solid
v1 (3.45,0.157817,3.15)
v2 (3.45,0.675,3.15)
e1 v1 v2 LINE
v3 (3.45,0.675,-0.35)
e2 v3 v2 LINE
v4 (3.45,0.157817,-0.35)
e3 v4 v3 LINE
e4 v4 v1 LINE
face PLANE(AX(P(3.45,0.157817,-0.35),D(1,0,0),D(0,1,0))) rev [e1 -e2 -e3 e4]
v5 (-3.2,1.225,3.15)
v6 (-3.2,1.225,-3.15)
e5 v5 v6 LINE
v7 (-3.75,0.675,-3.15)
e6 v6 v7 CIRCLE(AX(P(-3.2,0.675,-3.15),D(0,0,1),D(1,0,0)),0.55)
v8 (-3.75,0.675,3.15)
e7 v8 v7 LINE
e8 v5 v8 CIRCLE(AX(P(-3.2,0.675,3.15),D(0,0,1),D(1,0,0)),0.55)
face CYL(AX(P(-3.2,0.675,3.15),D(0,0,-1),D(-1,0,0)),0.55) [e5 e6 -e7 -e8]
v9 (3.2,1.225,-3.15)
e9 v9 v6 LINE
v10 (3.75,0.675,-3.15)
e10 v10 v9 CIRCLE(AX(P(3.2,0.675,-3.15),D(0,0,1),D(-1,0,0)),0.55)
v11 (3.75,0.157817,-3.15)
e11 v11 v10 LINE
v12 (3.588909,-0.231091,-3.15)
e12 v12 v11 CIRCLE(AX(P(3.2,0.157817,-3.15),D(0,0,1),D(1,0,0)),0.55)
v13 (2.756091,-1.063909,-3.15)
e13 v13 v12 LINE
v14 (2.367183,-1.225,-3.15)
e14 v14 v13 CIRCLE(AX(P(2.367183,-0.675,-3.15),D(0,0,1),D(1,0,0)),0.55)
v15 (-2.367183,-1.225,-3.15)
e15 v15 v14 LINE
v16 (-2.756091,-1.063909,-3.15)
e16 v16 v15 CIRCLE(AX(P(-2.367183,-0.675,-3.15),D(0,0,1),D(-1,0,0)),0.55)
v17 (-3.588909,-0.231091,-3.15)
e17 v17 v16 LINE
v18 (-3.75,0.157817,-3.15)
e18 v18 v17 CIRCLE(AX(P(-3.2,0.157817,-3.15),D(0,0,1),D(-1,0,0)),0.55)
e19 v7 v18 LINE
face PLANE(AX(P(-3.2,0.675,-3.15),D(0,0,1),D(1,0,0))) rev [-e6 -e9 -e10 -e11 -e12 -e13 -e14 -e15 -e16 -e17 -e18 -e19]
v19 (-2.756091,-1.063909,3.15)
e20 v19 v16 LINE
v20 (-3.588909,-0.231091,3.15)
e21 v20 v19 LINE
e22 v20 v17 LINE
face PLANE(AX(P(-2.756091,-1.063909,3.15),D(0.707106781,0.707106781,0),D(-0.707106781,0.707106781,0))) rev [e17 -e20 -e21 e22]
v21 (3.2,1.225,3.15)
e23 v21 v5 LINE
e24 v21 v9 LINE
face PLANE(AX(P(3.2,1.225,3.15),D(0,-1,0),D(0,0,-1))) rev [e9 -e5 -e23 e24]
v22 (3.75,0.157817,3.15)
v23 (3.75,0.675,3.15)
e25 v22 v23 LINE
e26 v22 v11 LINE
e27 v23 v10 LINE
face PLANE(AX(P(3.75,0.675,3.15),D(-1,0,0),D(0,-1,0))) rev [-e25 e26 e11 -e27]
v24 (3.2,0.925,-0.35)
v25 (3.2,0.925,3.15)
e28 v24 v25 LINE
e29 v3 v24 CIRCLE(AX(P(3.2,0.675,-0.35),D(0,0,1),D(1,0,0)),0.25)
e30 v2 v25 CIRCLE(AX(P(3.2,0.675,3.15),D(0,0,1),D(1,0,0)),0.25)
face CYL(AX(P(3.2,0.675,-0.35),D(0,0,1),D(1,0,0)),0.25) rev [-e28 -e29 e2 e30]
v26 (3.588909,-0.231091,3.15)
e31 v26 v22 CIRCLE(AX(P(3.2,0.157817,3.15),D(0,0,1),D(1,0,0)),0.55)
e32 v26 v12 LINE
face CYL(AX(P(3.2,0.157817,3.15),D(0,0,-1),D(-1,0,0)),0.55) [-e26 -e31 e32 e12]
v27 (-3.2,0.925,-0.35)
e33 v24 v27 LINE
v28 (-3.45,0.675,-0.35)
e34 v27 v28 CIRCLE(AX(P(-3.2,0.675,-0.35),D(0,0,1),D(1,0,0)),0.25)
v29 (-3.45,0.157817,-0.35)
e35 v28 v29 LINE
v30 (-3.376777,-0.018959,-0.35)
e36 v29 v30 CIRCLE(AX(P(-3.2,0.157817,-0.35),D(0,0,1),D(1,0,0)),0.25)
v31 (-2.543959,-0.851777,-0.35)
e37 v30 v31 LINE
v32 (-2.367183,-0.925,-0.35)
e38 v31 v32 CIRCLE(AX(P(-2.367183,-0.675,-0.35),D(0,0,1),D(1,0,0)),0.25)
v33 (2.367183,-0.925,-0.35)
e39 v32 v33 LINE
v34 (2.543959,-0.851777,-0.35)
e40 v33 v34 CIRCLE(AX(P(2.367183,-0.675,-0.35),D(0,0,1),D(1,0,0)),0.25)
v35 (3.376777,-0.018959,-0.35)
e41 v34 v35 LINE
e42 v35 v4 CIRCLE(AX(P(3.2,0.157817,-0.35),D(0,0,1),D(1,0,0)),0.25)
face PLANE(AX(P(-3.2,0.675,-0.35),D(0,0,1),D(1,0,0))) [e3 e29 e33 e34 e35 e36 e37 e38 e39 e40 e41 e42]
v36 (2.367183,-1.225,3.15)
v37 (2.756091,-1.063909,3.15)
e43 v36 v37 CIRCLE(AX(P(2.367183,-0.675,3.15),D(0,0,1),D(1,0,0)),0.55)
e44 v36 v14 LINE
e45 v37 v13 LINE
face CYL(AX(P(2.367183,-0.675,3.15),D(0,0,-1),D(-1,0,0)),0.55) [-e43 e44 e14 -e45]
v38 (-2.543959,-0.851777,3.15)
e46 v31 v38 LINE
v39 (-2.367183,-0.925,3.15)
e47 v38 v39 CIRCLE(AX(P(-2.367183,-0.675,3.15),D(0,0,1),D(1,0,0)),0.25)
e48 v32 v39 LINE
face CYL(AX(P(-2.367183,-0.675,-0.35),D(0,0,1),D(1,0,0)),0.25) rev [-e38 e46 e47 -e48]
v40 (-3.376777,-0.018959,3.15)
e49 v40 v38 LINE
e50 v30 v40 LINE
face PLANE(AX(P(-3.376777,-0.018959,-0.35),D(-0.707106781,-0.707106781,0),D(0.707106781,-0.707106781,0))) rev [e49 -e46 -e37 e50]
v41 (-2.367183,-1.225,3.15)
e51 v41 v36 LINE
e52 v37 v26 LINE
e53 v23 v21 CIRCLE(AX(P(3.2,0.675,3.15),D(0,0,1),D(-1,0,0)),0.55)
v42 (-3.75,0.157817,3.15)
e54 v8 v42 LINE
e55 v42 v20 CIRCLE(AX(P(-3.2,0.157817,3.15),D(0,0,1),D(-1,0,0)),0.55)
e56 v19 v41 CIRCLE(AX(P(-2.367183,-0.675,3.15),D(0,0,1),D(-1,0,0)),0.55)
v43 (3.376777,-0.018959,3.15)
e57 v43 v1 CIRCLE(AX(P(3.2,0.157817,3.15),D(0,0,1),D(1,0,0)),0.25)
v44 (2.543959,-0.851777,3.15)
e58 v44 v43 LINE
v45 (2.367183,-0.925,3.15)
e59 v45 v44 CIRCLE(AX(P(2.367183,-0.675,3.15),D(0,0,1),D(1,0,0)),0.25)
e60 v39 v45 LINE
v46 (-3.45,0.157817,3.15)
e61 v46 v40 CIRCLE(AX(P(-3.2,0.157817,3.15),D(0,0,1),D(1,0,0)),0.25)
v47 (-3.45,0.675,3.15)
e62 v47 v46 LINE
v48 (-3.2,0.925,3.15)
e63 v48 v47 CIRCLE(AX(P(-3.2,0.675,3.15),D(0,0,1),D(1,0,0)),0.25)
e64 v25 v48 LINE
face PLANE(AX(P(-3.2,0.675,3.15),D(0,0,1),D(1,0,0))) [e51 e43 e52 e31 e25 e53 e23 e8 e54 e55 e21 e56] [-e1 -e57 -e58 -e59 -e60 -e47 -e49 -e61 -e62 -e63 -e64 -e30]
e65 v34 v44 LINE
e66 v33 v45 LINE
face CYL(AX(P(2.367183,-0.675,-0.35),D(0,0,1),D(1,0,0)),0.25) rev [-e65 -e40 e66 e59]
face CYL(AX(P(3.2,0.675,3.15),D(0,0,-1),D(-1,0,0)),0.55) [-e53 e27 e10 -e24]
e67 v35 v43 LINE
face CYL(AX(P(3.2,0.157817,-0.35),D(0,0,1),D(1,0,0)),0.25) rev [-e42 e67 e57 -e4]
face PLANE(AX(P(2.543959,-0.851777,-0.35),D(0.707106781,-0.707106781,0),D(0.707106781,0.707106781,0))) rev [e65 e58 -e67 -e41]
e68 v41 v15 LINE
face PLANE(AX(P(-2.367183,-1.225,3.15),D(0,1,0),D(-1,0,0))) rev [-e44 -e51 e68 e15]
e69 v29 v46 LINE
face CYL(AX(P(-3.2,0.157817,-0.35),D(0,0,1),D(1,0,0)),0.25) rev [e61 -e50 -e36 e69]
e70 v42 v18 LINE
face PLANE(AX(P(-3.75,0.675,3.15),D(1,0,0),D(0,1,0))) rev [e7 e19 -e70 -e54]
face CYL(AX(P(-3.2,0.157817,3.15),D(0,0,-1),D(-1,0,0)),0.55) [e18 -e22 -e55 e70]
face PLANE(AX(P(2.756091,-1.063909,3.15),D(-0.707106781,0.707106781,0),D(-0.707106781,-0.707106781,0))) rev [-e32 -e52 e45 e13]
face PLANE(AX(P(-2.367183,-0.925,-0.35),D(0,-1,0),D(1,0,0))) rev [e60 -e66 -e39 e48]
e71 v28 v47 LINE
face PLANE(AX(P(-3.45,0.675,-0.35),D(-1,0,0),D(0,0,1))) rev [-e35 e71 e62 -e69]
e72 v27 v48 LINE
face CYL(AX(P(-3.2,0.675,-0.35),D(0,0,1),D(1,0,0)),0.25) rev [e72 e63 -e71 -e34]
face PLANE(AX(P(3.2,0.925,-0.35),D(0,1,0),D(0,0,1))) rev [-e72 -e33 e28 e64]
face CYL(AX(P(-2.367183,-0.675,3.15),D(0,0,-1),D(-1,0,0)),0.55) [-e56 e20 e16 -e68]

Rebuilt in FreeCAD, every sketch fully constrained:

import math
import FreeCAD as App
import Part
import Sketcher


def add_polygon(sketch, points):
    """Adds a closed chain of lines whose ends are joined by coincident constraints."""
    first, n = sketch.GeometryCount, len(points)
    for a, b in zip(points, points[1:] + points[:1]):
        sketch.addGeometry(Part.LineSegment(App.Vector(*a, 0), App.Vector(*b, 0)), False)
    for i in range(n):
        sketch.addConstraint(Sketcher.Constraint("Coincident", first + i, 2, first + (i + 1) % n, 1))

doc = App.newDocument("Part")
params = doc.addObject("Spreadsheet::Sheet", "Params")
for row, (alias, value) in enumerate([
    ("sketch1_radius", "0.55 mm"),
    ("sketch1_width", "6.4 mm"),
    ("pad1_length", "6.3 mm"),
    ("sketch2_radius", "0.55 mm"),
    ("sketch2_radius2", "0.25 mm"),
    ("sketch2_width", "6.4 mm"),
    ("sketch2_width2", "11.52 mm"),
    ("sketch2_height", "6.47 mm"),
    ("pocket1_length", "3.5 mm"),
], start=1):
    params.set(f"A{row}", alias)
    params.set(f"B{row}", "=" + value)
    params.setAlias(f"B{row}", alias)

body = doc.addObject("PartDesign::Body", "Body")

sketch1 = body.newObject("Sketcher::SketchObject", "Sketch")
sketch1.AttachmentSupport = (doc.getObject("XY_Plane"), [""])
sketch1.MapMode = "FlatFace"
sketch1.addGeometry(Part.LineSegment(App.Vector(3.2, 1.23, 0), App.Vector(-3.2, 1.23, 0)), False)
sketch1.addGeometry(Part.ArcOfCircle(Part.Circle(App.Vector(-3.2, 0.68, 0), App.Vector(0, 0, 1), 0.55), math.radians(90), math.radians(180)), False)
sketch1.addGeometry(Part.LineSegment(App.Vector(-3.75, 0.68, 0), App.Vector(-3.75, 0.16, 0)), False)
sketch1.addGeometry(Part.ArcOfCircle(Part.Circle(App.Vector(-3.2, 0.16, 0), App.Vector(0, 0, 1), 0.55), math.radians(-180), math.radians(-135)), False)
sketch1.addGeometry(Part.LineSegment(App.Vector(-3.59, -0.23, 0), App.Vector(-2.76, -1.06, 0)), False)
sketch1.addGeometry(Part.ArcOfCircle(Part.Circle(App.Vector(-2.37, -0.67, 0), App.Vector(0, 0, 1), 0.55), math.radians(-135), math.radians(-90)), False)
sketch1.addGeometry(Part.LineSegment(App.Vector(-2.37, -1.23, 0), App.Vector(2.37, -1.23, 0)), False)
sketch1.addGeometry(Part.ArcOfCircle(Part.Circle(App.Vector(2.37, -0.67, 0), App.Vector(0, 0, 1), 0.55), math.radians(-90), math.radians(-45)), False)
sketch1.addGeometry(Part.LineSegment(App.Vector(2.76, -1.06, 0), App.Vector(3.59, -0.23, 0)), False)
sketch1.addGeometry(Part.ArcOfCircle(Part.Circle(App.Vector(3.2, 0.16, 0), App.Vector(0, 0, 1), 0.55), math.radians(-45), math.radians(0)), False)
sketch1.addGeometry(Part.LineSegment(App.Vector(3.75, 0.16, 0), App.Vector(3.75, 0.68, 0)), False)
sketch1.addGeometry(Part.ArcOfCircle(Part.Circle(App.Vector(3.2, 0.68, 0), App.Vector(0, 0, 1), 0.55), math.radians(0), math.radians(90)), False)
sketch1.addConstraint(Sketcher.Constraint("Tangent", 0, 2, 1, 1))
sketch1.addConstraint(Sketcher.Constraint("Tangent", 1, 2, 2, 1))
sketch1.addConstraint(Sketcher.Constraint("Tangent", 2, 2, 3, 1))
sketch1.addConstraint(Sketcher.Constraint("Tangent", 3, 2, 4, 1))
sketch1.addConstraint(Sketcher.Constraint("Tangent", 4, 2, 5, 1))
sketch1.addConstraint(Sketcher.Constraint("Tangent", 5, 2, 6, 1))
sketch1.addConstraint(Sketcher.Constraint("Tangent", 6, 2, 7, 1))
sketch1.addConstraint(Sketcher.Constraint("Tangent", 7, 2, 8, 1))
sketch1.addConstraint(Sketcher.Constraint("Tangent", 8, 2, 9, 1))
sketch1.addConstraint(Sketcher.Constraint("Tangent", 9, 2, 10, 1))
sketch1.addConstraint(Sketcher.Constraint("Tangent", 10, 2, 11, 1))
sketch1.addConstraint(Sketcher.Constraint("Tangent", 11, 2, 0, 1))
sketch1.addConstraint(Sketcher.Constraint("Horizontal", 0))
sketch1.addConstraint(Sketcher.Constraint("Vertical", 2))
sketch1.addConstraint(Sketcher.Constraint("Horizontal", 6))
sketch1.addConstraint(Sketcher.Constraint("Vertical", 10))
sketch1.addConstraint(Sketcher.Constraint("Equal", 1, 3))
sketch1.addConstraint(Sketcher.Constraint("Equal", 3, 5))
sketch1.addConstraint(Sketcher.Constraint("Equal", 5, 7))
sketch1.addConstraint(Sketcher.Constraint("Equal", 7, 9))
sketch1.addConstraint(Sketcher.Constraint("Equal", 9, 11))
sketch1.addConstraint(Sketcher.Constraint("Symmetric", 3, 3, 9, 3, -2))
sketch1.addConstraint(Sketcher.Constraint("Perpendicular", 4, 8))
sketch1.addConstraint(Sketcher.Constraint("Horizontal", 4, 2, 7, 2))
sketch1.addConstraint(Sketcher.Constraint("Radius", 1, 0.55))
sketch1.addConstraint(Sketcher.Constraint("DistanceX", 0, 2, 0, 1, 6.4))
sketch1.addConstraint(Sketcher.Constraint("DistanceY", 5, 3, 0, 2, 1.9))
sketch1.addConstraint(Sketcher.Constraint("DistanceY", -1, 1, 1, 3, 0.675))
sketch1.addConstraint(Sketcher.Constraint("Distance", 4, 1.177782))
sketch1.setExpression("Constraints[24]", "Params.sketch1_radius")
sketch1.setExpression("Constraints[25]", "Params.sketch1_width")
pad1 = body.newObject("PartDesign::Pad", "Pad")
pad1.Profile = sketch1
pad1.setExpression("Length", "Params.pad1_length")
pad1.Midplane = True

sketch2 = body.newObject("Sketcher::SketchObject", "Sketch001")
sketch2.AttachmentSupport = (doc.getObject("XY_Plane"), [""])
sketch2.MapMode = "FlatFace"
sketch2.AttachmentOffset = App.Placement(App.Vector(0, 0, 3.15), App.Rotation())
add_polygon(sketch2, [(-5.76, 3.23), (-5.76, -3.23), (5.76, -3.23), (5.76, 3.23)])
sketch2.addGeometry(Part.LineSegment(App.Vector(3.59, -0.23, 0), App.Vector(2.76, -1.06, 0)), False)
sketch2.addGeometry(Part.ArcOfCircle(Part.Circle(App.Vector(2.37, -0.67, 0), App.Vector(0, 0, 1), 0.55), math.radians(-90), math.radians(-45)), False)
sketch2.addGeometry(Part.LineSegment(App.Vector(2.37, -1.23, 0), App.Vector(-2.37, -1.23, 0)), False)
sketch2.addGeometry(Part.ArcOfCircle(Part.Circle(App.Vector(-2.37, -0.67, 0), App.Vector(0, 0, 1), 0.55), math.radians(-135), math.radians(-90)), False)
sketch2.addGeometry(Part.LineSegment(App.Vector(-2.76, -1.06, 0), App.Vector(-3.59, -0.23, 0)), False)
sketch2.addGeometry(Part.ArcOfCircle(Part.Circle(App.Vector(-3.2, 0.16, 0), App.Vector(0, 0, 1), 0.55), math.radians(-180), math.radians(-135)), False)
sketch2.addGeometry(Part.LineSegment(App.Vector(-3.75, 0.16, 0), App.Vector(-3.75, 0.68, 0)), False)
sketch2.addGeometry(Part.ArcOfCircle(Part.Circle(App.Vector(-3.2, 0.68, 0), App.Vector(0, 0, 1), 0.55), math.radians(90), math.radians(180)), False)
sketch2.addGeometry(Part.LineSegment(App.Vector(-3.2, 1.23, 0), App.Vector(3.2, 1.23, 0)), False)
sketch2.addGeometry(Part.ArcOfCircle(Part.Circle(App.Vector(3.2, 0.68, 0), App.Vector(0, 0, 1), 0.55), math.radians(0), math.radians(90)), False)
sketch2.addGeometry(Part.LineSegment(App.Vector(3.75, 0.68, 0), App.Vector(3.75, 0.16, 0)), False)
sketch2.addGeometry(Part.ArcOfCircle(Part.Circle(App.Vector(3.2, 0.16, 0), App.Vector(0, 0, 1), 0.55), math.radians(-45), math.radians(0)), False)
sketch2.addGeometry(Part.LineSegment(App.Vector(-3.45, 0.68, 0), App.Vector(-3.45, 0.16, 0)), False)
sketch2.addGeometry(Part.ArcOfCircle(Part.Circle(App.Vector(-3.2, 0.16, 0), App.Vector(0, 0, 1), 0.25), math.radians(180), math.radians(225)), False)
sketch2.addGeometry(Part.LineSegment(App.Vector(-3.38, -0.02, 0), App.Vector(-2.54, -0.85, 0)), False)
sketch2.addGeometry(Part.ArcOfCircle(Part.Circle(App.Vector(-2.37, -0.68, 0), App.Vector(0, 0, 1), 0.25), math.radians(-135), math.radians(-90)), False)
sketch2.addGeometry(Part.LineSegment(App.Vector(-2.37, -0.93, 0), App.Vector(2.37, -0.93, 0)), False)
sketch2.addGeometry(Part.ArcOfCircle(Part.Circle(App.Vector(2.37, -0.68, 0), App.Vector(0, 0, 1), 0.25), math.radians(-90), math.radians(-45)), False)
sketch2.addGeometry(Part.LineSegment(App.Vector(2.54, -0.85, 0), App.Vector(3.38, -0.02, 0)), False)
sketch2.addGeometry(Part.ArcOfCircle(Part.Circle(App.Vector(3.2, 0.16, 0), App.Vector(0, 0, 1), 0.25), math.radians(-45), math.radians(0)), False)
sketch2.addGeometry(Part.LineSegment(App.Vector(3.45, 0.16, 0), App.Vector(3.45, 0.68, 0)), False)
sketch2.addGeometry(Part.ArcOfCircle(Part.Circle(App.Vector(3.2, 0.67, 0), App.Vector(0, 0, 1), 0.25), math.radians(0), math.radians(90)), False)
sketch2.addGeometry(Part.LineSegment(App.Vector(3.2, 0.93, 0), App.Vector(-3.2, 0.93, 0)), False)
sketch2.addGeometry(Part.ArcOfCircle(Part.Circle(App.Vector(-3.2, 0.67, 0), App.Vector(0, 0, 1), 0.25), math.radians(90), math.radians(180)), False)
sketch2.addConstraint(Sketcher.Constraint("Tangent", 4, 2, 5, 2))
sketch2.addConstraint(Sketcher.Constraint("Tangent", 5, 1, 6, 1))
sketch2.addConstraint(Sketcher.Constraint("Tangent", 6, 2, 7, 2))
sketch2.addConstraint(Sketcher.Constraint("Tangent", 7, 1, 8, 1))
sketch2.addConstraint(Sketcher.Constraint("Tangent", 8, 2, 9, 2))
sketch2.addConstraint(Sketcher.Constraint("Tangent", 9, 1, 10, 1))
sketch2.addConstraint(Sketcher.Constraint("Tangent", 10, 2, 11, 2))
sketch2.addConstraint(Sketcher.Constraint("Tangent", 11, 1, 12, 1))
sketch2.addConstraint(Sketcher.Constraint("Tangent", 12, 2, 13, 2))
sketch2.addConstraint(Sketcher.Constraint("Tangent", 13, 1, 14, 1))
sketch2.addConstraint(Sketcher.Constraint("Tangent", 14, 2, 15, 2))
sketch2.addConstraint(Sketcher.Constraint("Tangent", 15, 1, 4, 1))
sketch2.addConstraint(Sketcher.Constraint("Tangent", 16, 2, 17, 1))
sketch2.addConstraint(Sketcher.Constraint("Tangent", 17, 2, 18, 1))
sketch2.addConstraint(Sketcher.Constraint("Tangent", 18, 2, 19, 1))
sketch2.addConstraint(Sketcher.Constraint("Tangent", 19, 2, 20, 1))
sketch2.addConstraint(Sketcher.Constraint("Tangent", 20, 2, 21, 1))
sketch2.addConstraint(Sketcher.Constraint("Tangent", 21, 2, 22, 1))
sketch2.addConstraint(Sketcher.Constraint("Tangent", 22, 2, 23, 1))
sketch2.addConstraint(Sketcher.Constraint("Tangent", 23, 2, 24, 1))
sketch2.addConstraint(Sketcher.Constraint("Tangent", 24, 2, 25, 1))
sketch2.addConstraint(Sketcher.Constraint("Tangent", 25, 2, 26, 1))
sketch2.addConstraint(Sketcher.Constraint("Tangent", 26, 2, 27, 1))
sketch2.addConstraint(Sketcher.Constraint("Tangent", 27, 2, 16, 1))
sketch2.addConstraint(Sketcher.Constraint("Vertical", 0))
sketch2.addConstraint(Sketcher.Constraint("Horizontal", 1))
sketch2.addConstraint(Sketcher.Constraint("Vertical", 2))
sketch2.addConstraint(Sketcher.Constraint("Horizontal", 3))
sketch2.addConstraint(Sketcher.Constraint("Horizontal", 6))
sketch2.addConstraint(Sketcher.Constraint("Vertical", 10))
sketch2.addConstraint(Sketcher.Constraint("Horizontal", 12))
sketch2.addConstraint(Sketcher.Constraint("Vertical", 14))
sketch2.addConstraint(Sketcher.Constraint("Vertical", 16))
sketch2.addConstraint(Sketcher.Constraint("Horizontal", 20))
sketch2.addConstraint(Sketcher.Constraint("Vertical", 24))
sketch2.addConstraint(Sketcher.Constraint("Horizontal", 26))
sketch2.addConstraint(Sketcher.Constraint("Coincident", 17, 3, 9, 3))
sketch2.addConstraint(Sketcher.Constraint("Coincident", 19, 3, 7, 3))
sketch2.addConstraint(Sketcher.Constraint("Coincident", 21, 3, 5, 3))
sketch2.addConstraint(Sketcher.Constraint("Coincident", 23, 3, 15, 3))
sketch2.addConstraint(Sketcher.Constraint("Coincident", 25, 3, 13, 3))
sketch2.addConstraint(Sketcher.Constraint("Coincident", 27, 3, 11, 3))
sketch2.addConstraint(Sketcher.Constraint("Equal", 5, 7))
sketch2.addConstraint(Sketcher.Constraint("Equal", 7, 9))
sketch2.addConstraint(Sketcher.Constraint("Equal", 9, 11))
sketch2.addConstraint(Sketcher.Constraint("Equal", 11, 13))
sketch2.addConstraint(Sketcher.Constraint("Equal", 13, 15))
sketch2.addConstraint(Sketcher.Constraint("Equal", 17, 19))
sketch2.addConstraint(Sketcher.Constraint("Symmetric", 0, 2, 2, 2, -1, 1))
sketch2.addConstraint(Sketcher.Constraint("Symmetric", 9, 3, 15, 3, -2))
sketch2.addConstraint(Sketcher.Constraint("Perpendicular", 4, 8))
sketch2.addConstraint(Sketcher.Constraint("Horizontal", 4, 2, 7, 1))
sketch2.addConstraint(Sketcher.Constraint("Radius", 5, 0.55))
sketch2.addConstraint(Sketcher.Constraint("Radius", 17, 0.25))
sketch2.addConstraint(Sketcher.Constraint("DistanceX", 12, 1, 12, 2, 6.4))
sketch2.addConstraint(Sketcher.Constraint("DistanceX", 1, 1, 1, 2, 11.52))
sketch2.addConstraint(Sketcher.Constraint("DistanceY", 0, 2, 0, 1, 6.47))
sketch2.addConstraint(Sketcher.Constraint("DistanceY", 6, 2, 27, 3, 1.9))
sketch2.addConstraint(Sketcher.Constraint("DistanceY", 0, 2, 19, 3, 2.56))
sketch2.addConstraint(Sketcher.Constraint("Distance", 4, 1.177782))
sketch2.setExpression("Constraints[56]", "Params.sketch2_radius")
sketch2.setExpression("Constraints[57]", "Params.sketch2_radius2")
sketch2.setExpression("Constraints[58]", "Params.sketch2_width")
sketch2.setExpression("Constraints[59]", "Params.sketch2_width2")
sketch2.setExpression("Constraints[60]", "Params.sketch2_height")
pocket1 = body.newObject("PartDesign::Pocket", "Pocket")
pocket1.Profile = sketch2
pocket1.setExpression("Length", "Params.pocket1_length")

doc.recompute()
